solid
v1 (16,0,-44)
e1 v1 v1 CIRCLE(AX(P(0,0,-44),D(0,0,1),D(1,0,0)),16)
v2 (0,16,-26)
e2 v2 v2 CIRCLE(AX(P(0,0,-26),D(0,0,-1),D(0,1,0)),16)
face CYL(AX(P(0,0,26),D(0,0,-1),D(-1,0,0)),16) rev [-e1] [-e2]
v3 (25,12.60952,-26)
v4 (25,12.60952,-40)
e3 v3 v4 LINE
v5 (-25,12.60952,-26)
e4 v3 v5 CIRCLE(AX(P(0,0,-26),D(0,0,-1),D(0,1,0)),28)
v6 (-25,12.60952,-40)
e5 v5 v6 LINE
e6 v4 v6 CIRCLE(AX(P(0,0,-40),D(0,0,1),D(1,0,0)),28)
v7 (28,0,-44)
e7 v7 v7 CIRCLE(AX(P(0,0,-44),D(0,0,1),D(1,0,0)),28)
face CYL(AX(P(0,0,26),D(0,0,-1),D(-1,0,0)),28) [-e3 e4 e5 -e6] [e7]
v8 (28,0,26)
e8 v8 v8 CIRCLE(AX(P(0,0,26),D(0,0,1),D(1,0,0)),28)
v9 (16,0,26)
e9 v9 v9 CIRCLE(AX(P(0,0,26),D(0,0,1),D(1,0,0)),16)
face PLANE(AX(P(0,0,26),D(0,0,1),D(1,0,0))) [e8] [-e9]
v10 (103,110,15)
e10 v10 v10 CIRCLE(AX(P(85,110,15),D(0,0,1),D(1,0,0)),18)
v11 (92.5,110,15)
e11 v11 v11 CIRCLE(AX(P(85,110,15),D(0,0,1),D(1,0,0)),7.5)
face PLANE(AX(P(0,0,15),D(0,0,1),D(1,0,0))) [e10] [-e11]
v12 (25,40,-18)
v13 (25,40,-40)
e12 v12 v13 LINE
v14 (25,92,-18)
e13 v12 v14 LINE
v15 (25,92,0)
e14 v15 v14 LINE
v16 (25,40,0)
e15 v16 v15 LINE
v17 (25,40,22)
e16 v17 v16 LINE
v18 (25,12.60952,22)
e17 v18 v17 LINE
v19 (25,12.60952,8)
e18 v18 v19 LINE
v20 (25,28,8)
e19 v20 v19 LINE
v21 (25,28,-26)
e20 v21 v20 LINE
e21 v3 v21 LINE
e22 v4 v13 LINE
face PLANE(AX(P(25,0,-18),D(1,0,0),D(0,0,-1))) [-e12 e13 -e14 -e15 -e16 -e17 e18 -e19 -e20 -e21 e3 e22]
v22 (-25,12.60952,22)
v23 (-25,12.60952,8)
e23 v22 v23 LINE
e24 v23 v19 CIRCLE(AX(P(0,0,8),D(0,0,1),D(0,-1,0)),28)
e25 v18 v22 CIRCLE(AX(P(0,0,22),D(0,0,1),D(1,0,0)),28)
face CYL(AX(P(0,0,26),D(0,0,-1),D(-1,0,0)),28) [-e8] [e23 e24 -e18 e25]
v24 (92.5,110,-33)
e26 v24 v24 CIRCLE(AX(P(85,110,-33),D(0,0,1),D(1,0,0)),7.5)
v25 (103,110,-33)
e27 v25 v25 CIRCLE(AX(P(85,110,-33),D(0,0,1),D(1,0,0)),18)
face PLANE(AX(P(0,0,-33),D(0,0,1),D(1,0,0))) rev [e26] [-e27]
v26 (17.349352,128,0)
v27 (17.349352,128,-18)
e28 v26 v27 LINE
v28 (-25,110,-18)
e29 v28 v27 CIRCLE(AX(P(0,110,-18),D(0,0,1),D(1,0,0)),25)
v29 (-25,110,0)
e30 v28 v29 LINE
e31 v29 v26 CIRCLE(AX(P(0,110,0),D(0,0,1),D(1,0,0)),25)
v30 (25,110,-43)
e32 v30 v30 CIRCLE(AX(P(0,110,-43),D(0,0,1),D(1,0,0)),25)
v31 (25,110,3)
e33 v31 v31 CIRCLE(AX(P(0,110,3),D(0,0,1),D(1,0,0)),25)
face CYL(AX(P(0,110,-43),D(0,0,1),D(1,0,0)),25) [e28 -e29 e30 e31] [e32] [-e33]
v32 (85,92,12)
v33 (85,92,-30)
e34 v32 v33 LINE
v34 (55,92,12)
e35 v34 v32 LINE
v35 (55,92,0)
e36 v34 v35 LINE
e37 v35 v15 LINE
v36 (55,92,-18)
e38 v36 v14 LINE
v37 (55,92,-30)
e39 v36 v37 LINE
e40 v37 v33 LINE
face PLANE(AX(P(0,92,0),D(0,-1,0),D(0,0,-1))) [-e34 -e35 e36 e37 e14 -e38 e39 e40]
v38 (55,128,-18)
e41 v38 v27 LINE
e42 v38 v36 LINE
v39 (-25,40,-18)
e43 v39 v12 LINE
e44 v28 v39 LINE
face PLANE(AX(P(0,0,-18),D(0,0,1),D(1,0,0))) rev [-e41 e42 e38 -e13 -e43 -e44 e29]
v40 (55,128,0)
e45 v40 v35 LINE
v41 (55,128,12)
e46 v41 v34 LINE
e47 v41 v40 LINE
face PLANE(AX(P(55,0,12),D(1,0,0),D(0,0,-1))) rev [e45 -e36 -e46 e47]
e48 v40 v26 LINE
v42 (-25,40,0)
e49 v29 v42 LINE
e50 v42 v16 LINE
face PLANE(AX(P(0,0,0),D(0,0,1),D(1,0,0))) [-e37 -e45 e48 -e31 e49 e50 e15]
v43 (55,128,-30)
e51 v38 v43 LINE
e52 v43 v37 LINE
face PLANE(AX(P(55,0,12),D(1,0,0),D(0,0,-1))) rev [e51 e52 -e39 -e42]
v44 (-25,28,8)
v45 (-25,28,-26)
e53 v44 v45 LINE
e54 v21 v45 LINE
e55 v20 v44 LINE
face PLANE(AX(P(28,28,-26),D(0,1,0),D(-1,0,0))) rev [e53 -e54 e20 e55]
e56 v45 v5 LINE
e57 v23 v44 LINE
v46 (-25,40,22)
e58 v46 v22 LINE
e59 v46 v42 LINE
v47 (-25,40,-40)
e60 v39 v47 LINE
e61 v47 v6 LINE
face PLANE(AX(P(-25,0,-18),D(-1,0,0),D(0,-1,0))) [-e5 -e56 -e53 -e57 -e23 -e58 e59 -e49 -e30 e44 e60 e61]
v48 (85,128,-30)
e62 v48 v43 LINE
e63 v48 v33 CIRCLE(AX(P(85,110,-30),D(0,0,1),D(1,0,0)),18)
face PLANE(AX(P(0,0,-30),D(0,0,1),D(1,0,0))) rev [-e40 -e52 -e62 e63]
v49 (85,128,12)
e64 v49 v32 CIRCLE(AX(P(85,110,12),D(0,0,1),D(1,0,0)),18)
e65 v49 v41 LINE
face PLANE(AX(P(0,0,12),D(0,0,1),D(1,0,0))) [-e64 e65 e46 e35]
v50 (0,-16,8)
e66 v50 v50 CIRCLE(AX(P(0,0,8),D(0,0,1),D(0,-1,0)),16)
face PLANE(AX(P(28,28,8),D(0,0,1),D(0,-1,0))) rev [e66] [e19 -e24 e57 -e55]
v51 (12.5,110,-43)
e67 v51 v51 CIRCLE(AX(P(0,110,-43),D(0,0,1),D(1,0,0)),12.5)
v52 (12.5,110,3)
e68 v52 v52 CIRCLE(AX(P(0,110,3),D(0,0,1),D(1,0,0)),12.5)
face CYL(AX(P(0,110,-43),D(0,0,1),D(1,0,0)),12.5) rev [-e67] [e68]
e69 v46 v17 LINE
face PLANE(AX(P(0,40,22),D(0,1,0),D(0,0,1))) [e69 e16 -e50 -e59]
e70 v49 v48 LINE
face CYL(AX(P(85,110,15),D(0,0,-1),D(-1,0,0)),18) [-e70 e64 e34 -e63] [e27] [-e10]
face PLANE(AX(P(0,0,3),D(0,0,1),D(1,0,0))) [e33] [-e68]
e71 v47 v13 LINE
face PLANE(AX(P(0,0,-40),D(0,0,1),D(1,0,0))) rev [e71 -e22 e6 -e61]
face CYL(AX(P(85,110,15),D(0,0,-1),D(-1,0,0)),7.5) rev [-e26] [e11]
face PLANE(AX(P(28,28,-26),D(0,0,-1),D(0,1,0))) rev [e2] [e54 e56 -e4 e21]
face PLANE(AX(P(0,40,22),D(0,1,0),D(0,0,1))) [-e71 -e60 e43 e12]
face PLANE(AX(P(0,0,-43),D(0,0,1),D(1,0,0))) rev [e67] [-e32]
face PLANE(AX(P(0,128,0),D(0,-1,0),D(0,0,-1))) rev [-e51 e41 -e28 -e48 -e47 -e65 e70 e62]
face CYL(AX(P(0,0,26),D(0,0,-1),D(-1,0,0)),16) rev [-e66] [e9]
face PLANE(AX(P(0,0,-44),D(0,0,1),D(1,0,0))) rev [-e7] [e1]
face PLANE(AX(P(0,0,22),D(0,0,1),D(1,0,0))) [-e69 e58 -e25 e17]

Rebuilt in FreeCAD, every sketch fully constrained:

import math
import FreeCAD as App
import Part
import Sketcher

V = App.Vector
Q = App.Units.Quantity

doc = App.newDocument("Part")
body = doc.addObject("PartDesign::Body", "Body")

# Sketch on XY plane
sketch1 = doc.addObject("Sketcher::SketchObject", "Sketch")
body.addObject(sketch1)
sketch1.AttachmentSupport = (doc.XY_Plane, [""])
sketch1.MapMode = "FlatFace"
sketch1.addGeometry(Part.Circle(V(0, 110, 0), V(0, 0, 1), 25), False)
sketch1.addGeometry(Part.Circle(V(0, 110, 0), V(0, 0, 1), 12.5), False)
sketch1.addConstraint(Sketcher.Constraint("Coincident", 1, 3, 0, 3))
sketch1.addConstraint(Sketcher.Constraint("PointOnObject", 0, 3, -2))
sketch1.addConstraint(Sketcher.Constraint("Diameter", 0, Q("50 mm")))
sketch1.addConstraint(Sketcher.Constraint("Diameter", 1, Q("25 mm")))
sketch1.addConstraint(Sketcher.Constraint("DistanceY", -1, 1, 0, 3, Q("110 mm")))
pad1 = doc.addObject("PartDesign::Pad", "Pad")
body.addObject(pad1)
pad1.Profile = sketch1
pad1.Type = "TwoLengths"
pad1.Length = 3
pad1.Length2 = 43

# Sketch on XY plane
sketch2 = doc.addObject("Sketcher::SketchObject", "Sketch001")
body.addObject(sketch2)
sketch2.AttachmentSupport = (doc.XY_Plane, [""])
sketch2.MapMode = "FlatFace"
sketch2.addGeometry(Part.ArcOfCircle(Part.Circle(V(0, 110, 0), V(0, 0, 1), 25), math.radians(180), math.radians(360)), False)
sketch2.addGeometry(Part.LineSegment(V(-25, 110, 0), V(-25, 40, 0)), False)
sketch2.addGeometry(Part.LineSegment(V(-25, 40, 0), V(25, 40, 0)), False)
sketch2.addGeometry(Part.LineSegment(V(25, 40, 0), V(25, 110, 0)), False)
sketch2.addConstraint(Sketcher.Constraint("Tangent", 0, 1, 1, 1))
sketch2.addConstraint(Sketcher.Constraint("Coincident", 1, 2, 2, 1))
sketch2.addConstraint(Sketcher.Constraint("Coincident", 2, 2, 3, 1))
sketch2.addConstraint(Sketcher.Constraint("Tangent", 3, 2, 0, 2))
sketch2.addConstraint(Sketcher.Constraint("Vertical", 1))
sketch2.addConstraint(Sketcher.Constraint("Horizontal", 2))
sketch2.addConstraint(Sketcher.Constraint("Vertical", 3))
sketch2.addConstraint(Sketcher.Constraint("PointOnObject", 0, 3, -2))
sketch2.addConstraint(Sketcher.Constraint("Radius", 0, Q("25 mm")))
sketch2.addConstraint(Sketcher.Constraint("DistanceY", 1, 2, 1, 1, Q("70 mm")))
sketch2.addConstraint(Sketcher.Constraint("DistanceY", -1, 1, 0, 3, Q("110 mm")))
pad2 = doc.addObject("PartDesign::Pad", "Pad001")
body.addObject(pad2)
pad2.Profile = sketch2
pad2.Length = 18
pad2.Reversed = True
body2 = doc.addObject("PartDesign::Body", "Body001")

# Sketch on XY plane
sketch3 = doc.addObject("Sketcher::SketchObject", "Sketch002")
body2.addObject(sketch3)
sketch3.AttachmentSupport = (doc.getObject("XY_Plane001"), [""])
sketch3.MapMode = "FlatFace"
sketch3.AttachmentOffset = App.Placement(V(0, 0, -9), App.Rotation())
sketch3.addGeometry(Part.Circle(V(0, 0, 0), V(0, 0, 1), 28), False)
sketch3.addGeometry(Part.Circle(V(0, 0, 0), V(0, 0, 1), 16), False)
sketch3.addConstraint(Sketcher.Constraint("Coincident", 0, 3, -1, 1))
sketch3.addConstraint(Sketcher.Constraint("Coincident", 1, 3, -1, 1))
sketch3.addConstraint(Sketcher.Constraint("Diameter", 0, Q("56 mm")))
sketch3.addConstraint(Sketcher.Constraint("Diameter", 1, Q("32 mm")))
pad3 = doc.addObject("PartDesign::Pad", "Pad002")
body2.addObject(pad3)
pad3.Profile = sketch3
pad3.Length = 70
pad3.Midplane = True
body.AllowCompound = True
doc.recompute()

boolean = doc.addObject("PartDesign::Boolean", "Boolean")
body.addObject(boolean)
boolean.Type = "Fuse"
boolean.addObjects([body2])

# Sketch on XY plane
sketch4 = doc.addObject("Sketcher::SketchObject", "Sketch003")
body.addObject(sketch4)
sketch4.AttachmentSupport = (doc.XY_Plane, [""])
sketch4.MapMode = "FlatFace"
sketch4.AttachmentOffset = App.Placement(V(0, 0, -9), App.Rotation())
sketch4.addGeometry(Part.LineSegment(V(25, 40, 0), V(-25, 40, 0)), False)
sketch4.addGeometry(Part.LineSegment(V(-25, 40, 0), V(-25, 12.60952, 0)), False)
sketch4.addGeometry(Part.ArcOfCircle(Part.Circle(V(0, 0, 0), V(0, 0, 1), 28), math.radians(26.765501), math.radians(153.234499)), False)
sketch4.addGeometry(Part.LineSegment(V(25, 12.60952, 0), V(25, 40, 0)), False)
sketch4.addConstraint(Sketcher.Constraint("Coincident", 0, 2, 1, 1))
sketch4.addConstraint(Sketcher.Constraint("Coincident", 1, 2, 2, 2))
sketch4.addConstraint(Sketcher.Constraint("Coincident", 2, 1, 3, 1))
sketch4.addConstraint(Sketcher.Constraint("Coincident", 3, 2, 0, 1))
sketch4.addConstraint(Sketcher.Constraint("Horizontal", 0))
sketch4.addConstraint(Sketcher.Constraint("Vertical", 1))
sketch4.addConstraint(Sketcher.Constraint("Vertical", 3))
sketch4.addConstraint(Sketcher.Constraint("Coincident", 2, 3, -1, 1))
sketch4.addConstraint(Sketcher.Constraint("Horizontal", 1, 2, 2, 1))
sketch4.addConstraint(Sketcher.Constraint("Radius", 2, Q("28 mm")))
sketch4.addConstraint(Sketcher.Constraint("DistanceX", 0, 2, 0, 1, Q("50 mm")))
sketch4.addConstraint(Sketcher.Constraint("DistanceY", -1, 1, 0, 2, Q("40 mm")))
pad4 = doc.addObject("PartDesign::Pad", "Pad003")
body.addObject(pad4)
pad4.Profile = sketch4
pad4.Length = 62
pad4.Midplane = True

# Sketch on YZ plane
sketch5 = doc.addObject("Sketcher::SketchObject", "Sketch004")
body.addObject(sketch5)
sketch5.AttachmentSupport = (doc.YZ_Plane, [""])
sketch5.MapMode = "FlatFace"
sketch5.AttachmentOffset = App.Placement(V(0, 0, -25), App.Rotation())
sketch5.addGeometry(Part.LineSegment(V(28, -26, 0), V(-55.380174, -26, 0)), False)
sketch5.addGeometry(Part.LineSegment(V(-55.380174, -26, 0), V(-55.380174, 8, 0)), False)
sketch5.addGeometry(Part.LineSegment(V(-55.380174, 8, 0), V(28, 8, 0)), False)
sketch5.addGeometry(Part.LineSegment(V(28, 8, 0), V(28, -26, 0)), False)
sketch5.addConstraint(Sketcher.Constraint("Coincident", 0, 2, 1, 1))
sketch5.addConstraint(Sketcher.Constraint("Coincident", 1, 2, 2, 1))
sketch5.addConstraint(Sketcher.Constraint("Coincident", 2, 2, 3, 1))
sketch5.addConstraint(Sketcher.Constraint("Coincident", 3, 2, 0, 1))
sketch5.addConstraint(Sketcher.Constraint("Horizontal", 0))
sketch5.addConstraint(Sketcher.Constraint("Vertical", 1))
sketch5.addConstraint(Sketcher.Constraint("Horizontal", 2))
sketch5.addConstraint(Sketcher.Constraint("Vertical", 3))
sketch5.addConstraint(Sketcher.Constraint("DistanceY", 1, 1, 1, 2, Q("34 mm")))
sketch5.addConstraint(Sketcher.Constraint("DistanceY", 0, 2, -1, 1, Q("26 mm")))
sketch5.addConstraint(Sketcher.Constraint("DistanceX", -1, 1, 2, 2, Q("28 mm")))
sketch5.addConstraint(Sketcher.Constraint("DistanceX", 0, 2, 0, 1, Q("83.380174 mm")))
pocket1 = doc.addObject("PartDesign::Pocket", "Pocket")
body.addObject(pocket1)
pocket1.Profile = sketch5
pocket1.Type = "ThroughAll"
pocket1.Midplane = True
body3 = doc.addObject("PartDesign::Body", "Body002")

# Sketch on XY plane
sketch6 = doc.addObject("Sketcher::SketchObject", "Sketch005")
body3.addObject(sketch6)
sketch6.AttachmentSupport = (doc.getObject("XY_Plane002"), [""])
sketch6.MapMode = "FlatFace"
sketch6.AttachmentOffset = App.Placement(V(0, 0, -9), App.Rotation())
sketch6.addGeometry(Part.Circle(V(85, 110, 0), V(0, 0, 1), 18), False)
sketch6.addGeometry(Part.Circle(V(85, 110, 0), V(0, 0, 1), 7.5), False)
sketch6.addConstraint(Sketcher.Constraint("Coincident", 1, 3, 0, 3))
sketch6.addConstraint(Sketcher.Constraint("Diameter", 0, Q("36 mm")))
sketch6.addConstraint(Sketcher.Constraint("Diameter", 1, Q("15 mm")))
sketch6.addConstraint(Sketcher.Constraint("DistanceX", -1, 1, 0, 3, Q("85 mm")))
sketch6.addConstraint(Sketcher.Constraint("DistanceY", -1, 1, 0, 3, Q("110 mm")))
pad5 = doc.addObject("PartDesign::Pad", "Pad004")
body3.addObject(pad5)
pad5.Profile = sketch6
pad5.Length = 48
pad5.Midplane = True

# Sketch on XY plane
sketch7 = doc.addObject("Sketcher::SketchObject", "Sketch006")
body3.addObject(sketch7)
sketch7.AttachmentSupport = (doc.getObject("XY_Plane002"), [""])
sketch7.MapMode = "FlatFace"
sketch7.AttachmentOffset = App.Placement(V(0, 0, -9), App.Rotation())
sketch7.addGeometry(Part.ArcOfCircle(Part.Circle(V(85, 110, 0), V(0, 0, 1), 18), math.radians(90), math.radians(180)), False)
sketch7.addGeometry(Part.LineSegment(V(85, 128, 0), V(55, 128, 0)), False)
sketch7.addGeometry(Part.LineSegment(V(55, 128, 0), V(55, 92, 0)), False)
sketch7.addGeometry(Part.LineSegment(V(55, 92, 0), V(85, 92, 0)), False)
sketch7.addGeometry(Part.ArcOfCircle(Part.Circle(V(85, 110, 0), V(0, 0, 1), 18), math.radians(-180), math.radians(-90)), False)
sketch7.addConstraint(Sketcher.Constraint("Tangent", 0, 1, 1, 1))
sketch7.addConstraint(Sketcher.Constraint("Coincident", 1, 2, 2, 1))
sketch7.addConstraint(Sketcher.Constraint("Coincident", 2, 2, 3, 1))
sketch7.addConstraint(Sketcher.Constraint("Tangent", 3, 2, 4, 2))
sketch7.addConstraint(Sketcher.Constraint("Tangent", 4, 1, 0, 2))
sketch7.addConstraint(Sketcher.Constraint("Horizontal", 1))
sketch7.addConstraint(Sketcher.Constraint("Vertical", 2))
sketch7.addConstraint(Sketcher.Constraint("Horizontal", 3))
sketch7.addConstraint(Sketcher.Constraint("Equal", 0, 4))
sketch7.addConstraint(Sketcher.Constraint("Horizontal", 0, 3, 4, 1))
sketch7.addConstraint(Sketcher.Constraint("Radius", 0, Q("18 mm")))
sketch7.addConstraint(Sketcher.Constraint("DistanceX", 1, 2, 1, 1, Q("30 mm")))
sketch7.addConstraint(Sketcher.Constraint("DistanceX", -1, 1, 0, 3, Q("85 mm")))
sketch7.addConstraint(Sketcher.Constraint("DistanceY", -1, 1, 0, 3, Q("110 mm")))
pad6 = doc.addObject("PartDesign::Pad", "Pad005")
body3.addObject(pad6)
pad6.Profile = sketch7
pad6.Length = 42
pad6.Midplane = True
body.AllowCompound = True
doc.recompute()

boolean2 = doc.addObject("PartDesign::Boolean", "Boolean001")
body.addObject(boolean2)
boolean2.Type = "Fuse"
boolean2.addObjects([body3])

# Sketch on XY plane
sketch8 = doc.addObject("Sketcher::SketchObject", "Sketch007")
body.addObject(sketch8)
sketch8.AttachmentSupport = (doc.XY_Plane, [""])
sketch8.MapMode = "FlatFace"
sketch8.AttachmentOffset = App.Placement(V(0, 0, -9), App.Rotation())
sketch8.addGeometry(Part.LineSegment(V(55, 128, 0), V(17.349352, 128, 0)), False)
sketch8.addGeometry(Part.ArcOfCircle(Part.Circle(V(0, 110, 0), V(0, 0, 1), 25), math.radians(0), math.radians(46.05448)), False)
sketch8.addGeometry(Part.ArcOfCircle(Part.Circle(V(0, 110, 0), V(0, 0, 1), 25), math.radians(-46.05448), math.radians(0)), False)
sketch8.addGeometry(Part.LineSegment(V(17.349352, 92, 0), V(55, 92, 0)), False)
sketch8.addGeometry(Part.LineSegment(V(55, 92, 0), V(55, 128, 0)), False)
sketch8.addConstraint(Sketcher.Constraint("Coincident", 0, 2, 1, 2))
sketch8.addConstraint(Sketcher.Constraint("Tangent", 1, 1, 2, 2))
sketch8.addConstraint(Sketcher.Constraint("Coincident", 2, 1, 3, 1))
sketch8.addConstraint(Sketcher.Constraint("Coincident", 3, 2, 4, 1))
sketch8.addConstraint(Sketcher.Constraint("Coincident", 4, 2, 0, 1))
sketch8.addConstraint(Sketcher.Constraint("Horizontal", 0))
sketch8.addConstraint(Sketcher.Constraint("Horizontal", 3))
sketch8.addConstraint(Sketcher.Constraint("Vertical", 4))
sketch8.addConstraint(Sketcher.Constraint("Equal", 1, 2))
sketch8.addConstraint(Sketcher.Constraint("PointOnObject", 1, 3, -2))
sketch8.addConstraint(Sketcher.Constraint("Horizontal", 2, 3, 1, 1))
sketch8.addConstraint(Sketcher.Constraint("Vertical", 0, 2, 2, 1))
sketch8.addConstraint(Sketcher.Constraint("Radius", 1, Q("25 mm")))
sketch8.addConstraint(Sketcher.Constraint("DistanceY", 4, 1, 4, 2, Q("36 mm")))
sketch8.addConstraint(Sketcher.Constraint("DistanceY", -1, 1, 1, 3, Q("110 mm")))
sketch8.addConstraint(Sketcher.Constraint("DistanceX", -1, 1, 3, 2, Q("55 mm")))
pad7 = doc.addObject("PartDesign::Pad", "Pad006")
body.addObject(pad7)
pad7.Profile = sketch8
pad7.Length = 18
pad7.Midplane = True

doc.recompute()
